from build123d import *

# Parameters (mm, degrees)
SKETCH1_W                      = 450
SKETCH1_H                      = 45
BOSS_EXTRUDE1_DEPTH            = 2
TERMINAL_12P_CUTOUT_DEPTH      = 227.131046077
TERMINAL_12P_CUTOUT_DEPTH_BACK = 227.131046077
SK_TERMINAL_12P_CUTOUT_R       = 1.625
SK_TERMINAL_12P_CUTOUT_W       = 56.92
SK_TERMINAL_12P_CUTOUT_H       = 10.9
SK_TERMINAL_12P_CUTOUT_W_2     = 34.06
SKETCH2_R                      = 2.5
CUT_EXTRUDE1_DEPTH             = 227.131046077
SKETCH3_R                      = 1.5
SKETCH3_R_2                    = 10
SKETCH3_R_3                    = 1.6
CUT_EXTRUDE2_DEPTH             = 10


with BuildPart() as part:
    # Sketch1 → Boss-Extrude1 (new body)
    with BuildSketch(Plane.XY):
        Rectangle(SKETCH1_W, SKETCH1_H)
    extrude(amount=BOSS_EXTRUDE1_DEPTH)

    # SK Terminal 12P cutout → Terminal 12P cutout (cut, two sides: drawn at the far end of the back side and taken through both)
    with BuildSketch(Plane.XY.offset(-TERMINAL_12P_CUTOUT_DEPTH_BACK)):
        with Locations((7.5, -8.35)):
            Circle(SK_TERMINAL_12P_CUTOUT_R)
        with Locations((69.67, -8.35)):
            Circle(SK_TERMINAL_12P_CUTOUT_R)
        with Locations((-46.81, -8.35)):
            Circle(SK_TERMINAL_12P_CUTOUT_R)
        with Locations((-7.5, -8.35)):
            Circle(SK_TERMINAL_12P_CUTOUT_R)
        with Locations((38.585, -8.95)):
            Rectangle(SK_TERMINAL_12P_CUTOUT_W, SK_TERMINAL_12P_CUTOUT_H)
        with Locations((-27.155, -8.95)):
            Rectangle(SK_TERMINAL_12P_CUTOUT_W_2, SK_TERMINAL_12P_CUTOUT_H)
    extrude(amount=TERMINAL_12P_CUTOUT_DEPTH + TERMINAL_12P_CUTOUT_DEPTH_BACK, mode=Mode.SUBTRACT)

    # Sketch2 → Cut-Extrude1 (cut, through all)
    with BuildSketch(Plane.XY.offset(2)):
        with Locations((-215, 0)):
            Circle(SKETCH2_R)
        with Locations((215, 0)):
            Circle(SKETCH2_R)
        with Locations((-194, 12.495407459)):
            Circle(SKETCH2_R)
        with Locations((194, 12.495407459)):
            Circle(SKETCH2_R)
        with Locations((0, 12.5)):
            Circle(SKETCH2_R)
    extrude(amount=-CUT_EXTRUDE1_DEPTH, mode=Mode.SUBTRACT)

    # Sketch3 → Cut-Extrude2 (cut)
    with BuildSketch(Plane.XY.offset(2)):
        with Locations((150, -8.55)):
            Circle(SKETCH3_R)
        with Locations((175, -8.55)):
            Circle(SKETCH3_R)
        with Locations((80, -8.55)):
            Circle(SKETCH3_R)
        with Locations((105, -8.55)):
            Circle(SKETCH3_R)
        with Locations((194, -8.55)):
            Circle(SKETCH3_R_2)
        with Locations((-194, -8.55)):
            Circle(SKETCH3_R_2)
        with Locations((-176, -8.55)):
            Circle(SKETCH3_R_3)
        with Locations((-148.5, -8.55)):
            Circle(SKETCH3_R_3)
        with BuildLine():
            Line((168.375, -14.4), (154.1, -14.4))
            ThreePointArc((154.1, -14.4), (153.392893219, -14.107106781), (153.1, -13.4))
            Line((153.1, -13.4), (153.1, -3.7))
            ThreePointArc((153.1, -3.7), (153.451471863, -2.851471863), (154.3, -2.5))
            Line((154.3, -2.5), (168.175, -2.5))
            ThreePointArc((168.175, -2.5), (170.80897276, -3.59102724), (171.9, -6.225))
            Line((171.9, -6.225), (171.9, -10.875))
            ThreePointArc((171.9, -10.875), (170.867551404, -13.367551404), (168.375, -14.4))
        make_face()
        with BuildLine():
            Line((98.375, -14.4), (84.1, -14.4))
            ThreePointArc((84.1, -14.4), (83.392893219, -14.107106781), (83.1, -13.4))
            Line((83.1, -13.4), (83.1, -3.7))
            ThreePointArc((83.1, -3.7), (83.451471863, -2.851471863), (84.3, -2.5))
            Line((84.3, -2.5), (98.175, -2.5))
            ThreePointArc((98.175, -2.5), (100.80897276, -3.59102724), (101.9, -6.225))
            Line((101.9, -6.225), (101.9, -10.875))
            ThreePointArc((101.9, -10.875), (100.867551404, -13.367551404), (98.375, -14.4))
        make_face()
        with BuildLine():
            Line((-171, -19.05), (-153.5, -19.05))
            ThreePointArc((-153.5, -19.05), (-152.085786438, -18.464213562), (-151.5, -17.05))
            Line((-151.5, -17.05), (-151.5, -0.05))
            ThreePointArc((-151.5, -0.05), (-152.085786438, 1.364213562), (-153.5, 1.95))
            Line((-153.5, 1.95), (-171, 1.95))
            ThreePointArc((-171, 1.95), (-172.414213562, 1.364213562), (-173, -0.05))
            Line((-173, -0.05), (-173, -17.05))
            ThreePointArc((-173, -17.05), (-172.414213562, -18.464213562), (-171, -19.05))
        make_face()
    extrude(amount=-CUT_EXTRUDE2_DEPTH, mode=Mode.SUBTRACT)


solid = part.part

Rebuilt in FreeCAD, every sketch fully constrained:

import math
import FreeCAD as App
import Part
import Sketcher

V = App.Vector


def add_polygon(sketch, points):
    """Adds a closed chain of lines whose ends are joined by coincident constraints."""
    first, n = sketch.GeometryCount, len(points)
    for a, b in zip(points, points[1:] + points[:1]):
        sketch.addGeometry(Part.LineSegment(App.Vector(*a, 0), App.Vector(*b, 0)), False)
    for i in range(n):
        sketch.addConstraint(Sketcher.Constraint("Coincident", first + i, 2, first + (i + 1) % n, 1))

doc = App.newDocument("Part")
params = doc.addObject("Spreadsheet::Sheet", "Params")
for row, (alias, value) in enumerate([
    ("sketch1_width", "450 mm"),
    ("sketch1_height", "45 mm"),
    ("pad1_length", "2 mm"),
    ("sketch2_diameter", "3.25 mm"),
    ("sketch2_height", "10.9 mm"),
    ("sketch2_width", "56.92 mm"),
    ("sketch2_width2", "34.06 mm"),
    ("sketch3_diameter", "5 mm"),
    ("sketch4_diameter", "3 mm"),
    ("sketch4_diameter2", "20 mm"),
    ("sketch4_radius", "1 mm"),
    ("sketch4_radius2", "2 mm"),
    ("sketch4_diameter3", "3.2 mm"),
    ("pocket3_length", "10 mm"),
], start=1):
    params.set(f"A{row}", alias)
    params.set(f"B{row}", "=" + value)
    params.setAlias(f"B{row}", alias)

body = doc.addObject("PartDesign::Body", "Body")

# Sketch on XY plane
sketch1 = body.newObject("Sketcher::SketchObject", "Sketch")
sketch1.AttachmentSupport = (doc.getObject("XY_Plane"), [""])
sketch1.MapMode = "FlatFace"
add_polygon(sketch1, [(-225, 22), (-225, -22), (225, -22), (225, 22)])  # lines 0-3
sketch1.addConstraint(Sketcher.Constraint("Vertical", 0))
sketch1.addConstraint(Sketcher.Constraint("Horizontal", 1))
sketch1.addConstraint(Sketcher.Constraint("Vertical", 2))
sketch1.addConstraint(Sketcher.Constraint("Horizontal", 3))
sketch1.addConstraint(Sketcher.Constraint("Symmetric", 0, 2, 2, 2, -1, 1))
sketch1.addConstraint(Sketcher.Constraint("DistanceX", 1, 1, 1, 2, 450.0))
sketch1.addConstraint(Sketcher.Constraint("DistanceY", 0, 2, 0, 1, 45.0))
sketch1.setExpression("Constraints[9]", "Params.sketch1_width")
sketch1.setExpression("Constraints[10]", "Params.sketch1_height")
pad1 = body.newObject("PartDesign::Pad", "Pad")
pad1.Profile = sketch1
pad1.setExpression("Length", "Params.pad1_length")

# Sketch on XY plane
sketch2 = body.newObject("Sketcher::SketchObject", "Sketch001")
sketch2.AttachmentSupport = (doc.getObject("XY_Plane"), [""])
sketch2.MapMode = "FlatFace"
sketch2.addGeometry(Part.Circle(V(7.5, -8.3, 0), V(0, 0, 1), 1.6), False)  # 0
sketch2.addGeometry(Part.Circle(V(69.7, -8.3, 0), V(0, 0, 1), 1.6), False)  # 1
sketch2.addGeometry(Part.Circle(V(-46.8, -8.3, 0), V(0, 0, 1), 1.6), False)  # 2
sketch2.addGeometry(Part.Circle(V(-7.5, -8.3, 0), V(0, 0, 1), 1.6), False)  # 3
add_polygon(sketch2, [(10.1, -3.5), (10.1, -14.4), (67, -14.4), (67, -3.5)])  # lines 4-7
add_polygon(sketch2, [(-44.2, -3.5), (-44.2, -14.4), (-10.1, -14.4), (-10.1, -3.5)])  # lines 8-11
sketch2.addConstraint(Sketcher.Constraint("Vertical", 4))
sketch2.addConstraint(Sketcher.Constraint("Horizontal", 5))
sketch2.addConstraint(Sketcher.Constraint("Vertical", 6))
sketch2.addConstraint(Sketcher.Constraint("Horizontal", 7))
sketch2.addConstraint(Sketcher.Constraint("Vertical", 8))
sketch2.addConstraint(Sketcher.Constraint("Horizontal", 9))
sketch2.addConstraint(Sketcher.Constraint("Vertical", 10))
sketch2.addConstraint(Sketcher.Constraint("Horizontal", 11))
sketch2.addConstraint(Sketcher.Constraint("Equal", 0, 1))
sketch2.addConstraint(Sketcher.Constraint("Equal", 1, 2))
sketch2.addConstraint(Sketcher.Constraint("Equal", 2, 3))
sketch2.addConstraint(Sketcher.Constraint("Symmetric", 0, 3, 3, 3, -2))
sketch2.addConstraint(Sketcher.Constraint("Symmetric", 4, 2, 9, 2, -2))
sketch2.addConstraint(Sketcher.Constraint("Horizontal", 0, 3, 1, 3))
sketch2.addConstraint(Sketcher.Constraint("Horizontal", 1, 3, 2, 3))
sketch2.addConstraint(Sketcher.Constraint("Horizontal", 7, 2, 10, 2))
sketch2.addConstraint(Sketcher.Constraint("Diameter", 0, 3.25))
sketch2.addConstraint(Sketcher.Constraint("DistanceY", 4, 2, 4, 1, 10.9))
sketch2.addConstraint(Sketcher.Constraint("DistanceX", 3, 3, 0, 3, 15.0))
sketch2.addConstraint(Sketcher.Constraint("DistanceX", 5, 1, 5, 2, 56.92))
sketch2.addConstraint(Sketcher.Constraint("DistanceX", 9, 1, 9, 2, 34.06))
sketch2.addConstraint(Sketcher.Constraint("DistanceY", 4, 2, -1, 1, 14.4))
sketch2.addConstraint(Sketcher.Constraint("DistanceY", 0, 3, -1, 1, 8.35))
sketch2.addConstraint(Sketcher.Constraint("DistanceX", -1, 1, 1, 3, 69.67))
sketch2.addConstraint(Sketcher.Constraint("DistanceX", 2, 3, -1, 1, 46.81))
sketch2.addConstraint(Sketcher.Constraint("DistanceX", 8, 2, 4, 2, 54.31))
sketch2.setExpression("Constraints[24]", "Params.sketch2_diameter")
sketch2.setExpression("Constraints[25]", "Params.sketch2_height")
sketch2.setExpression("Constraints[27]", "Params.sketch2_width")
sketch2.setExpression("Constraints[28]", "Params.sketch2_width2")
pocket1 = body.newObject("PartDesign::Pocket", "Pocket")
pocket1.Profile = sketch2
pocket1.Type = "ThroughAll"
pocket1.Midplane = True

# Sketch on XY plane
sketch3 = body.newObject("Sketcher::SketchObject", "Sketch002")
sketch3.AttachmentSupport = (doc.getObject("XY_Plane"), [""])
sketch3.MapMode = "FlatFace"
sketch3.AttachmentOffset = App.Placement(V(0, 0, 2), App.Rotation())
sketch3.addGeometry(Part.Circle(V(-215, 0, 0), V(0, 0, 1), 2.5), False)
sketch3.addGeometry(Part.Circle(V(215, 0, 0), V(0, 0, 1), 2.5), False)
sketch3.addGeometry(Part.Circle(V(-194, 12.5, 0), V(0, 0, 1), 2.5), False)
sketch3.addGeometry(Part.Circle(V(194, 12.5, 0), V(0, 0, 1), 2.5), False)
sketch3.addGeometry(Part.Circle(V(0, 12.5, 0), V(0, 0, 1), 2.5), False)
sketch3.addConstraint(Sketcher.Constraint("Equal", 0, 1))
sketch3.addConstraint(Sketcher.Constraint("Equal", 1, 2))
sketch3.addConstraint(Sketcher.Constraint("Equal", 2, 3))
sketch3.addConstraint(Sketcher.Constraint("Equal", 3, 4))
sketch3.addConstraint(Sketcher.Constraint("Symmetric", 0, 3, 1, 3, -1, 1))
sketch3.addConstraint(Sketcher.Constraint("Symmetric", 2, 3, 3, 3, -2))
sketch3.addConstraint(Sketcher.Constraint("PointOnObject", 0, 3, -1))
sketch3.addConstraint(Sketcher.Constraint("PointOnObject", 4, 3, -2))
sketch3.addConstraint(Sketcher.Constraint("Diameter", 0, 5.0))
sketch3.addConstraint(Sketcher.Constraint("DistanceX", 0, 3, -1, 1, 215.0))
sketch3.addConstraint(Sketcher.Constraint("DistanceX", 2, 3, -1, 1, 194.0))
sketch3.addConstraint(Sketcher.Constraint("DistanceY", -1, 1, 4, 3, 12.5))
sketch3.addConstraint(Sketcher.Constraint("DistanceY", -1, 1, 2, 3, 12.495407))
sketch3.setExpression("Constraints[8]", "Params.sketch3_diameter")
pocket2 = body.newObject("PartDesign::Pocket", "Pocket001")
pocket2.Profile = sketch3
pocket2.Type = "ThroughAll"

# Sketch on XY plane
sketch4 = body.newObject("Sketcher::SketchObject", "Sketch003")
sketch4.AttachmentSupport = (doc.getObject("XY_Plane"), [""])
sketch4.MapMode = "FlatFace"
sketch4.AttachmentOffset = App.Placement(V(0, 0, 2), App.Rotation())
sketch4.addGeometry(Part.Circle(V(150, -8.6, 0), V(0, 0, 1), 1.5), False)
sketch4.addGeometry(Part.Circle(V(175, -8.6, 0), V(0, 0, 1), 1.5), False)
sketch4.addGeometry(Part.Circle(V(80, -8.6, 0), V(0, 0, 1), 1.5), False)
sketch4.addGeometry(Part.Circle(V(105, -8.6, 0), V(0, 0, 1), 1.5), False)
sketch4.addGeometry(Part.Circle(V(194, -8.6, 0), V(0, 0, 1), 10), False)
sketch4.addGeometry(Part.Circle(V(-194, -8.6, 0), V(0, 0, 1), 10), False)
sketch4.addGeometry(Part.Circle(V(-176, -8.6, 0), V(0, 0, 1), 1.6), False)
sketch4.addGeometry(Part.Circle(V(-148.5, -8.6, 0), V(0, 0, 1), 1.6), False)
sketch4.addGeometry(Part.LineSegment(V(154.1, -14.4, 0), V(168.4, -14.4, 0)), False)
sketch4.addGeometry(Part.ArcOfCircle(Part.Circle(V(168.4, -10.9, 0), V(0, 0, 1), 3.5), math.radians(-90), math.radians(0)), False)
sketch4.addGeometry(Part.LineSegment(V(171.9, -10.9, 0), V(171.9, -6.2, 0)), False)
sketch4.addGeometry(Part.ArcOfCircle(Part.Circle(V(168.2, -6.2, 0), V(0, 0, 1), 3.7), math.radians(0), math.radians(90)), False)
sketch4.addGeometry(Part.LineSegment(V(168.2, -2.5, 0), V(154.3, -2.5, 0)), False)
sketch4.addGeometry(Part.ArcOfCircle(Part.Circle(V(154.3, -3.7, 0), V(0, 0, 1), 1.2), math.radians(90), math.radians(180)), False)
sketch4.addGeometry(Part.LineSegment(V(153.1, -3.7, 0), V(153.1, -13.4, 0)), False)
sketch4.addGeometry(Part.ArcOfCircle(Part.Circle(V(154.1, -13.4, 0), V(0, 0, 1), 1), math.radians(-180), math.radians(-90)), False)
sketch4.addGeometry(Part.LineSegment(V(84.1, -14.4, 0), V(98.4, -14.4, 0)), False)
sketch4.addGeometry(Part.ArcOfCircle(Part.Circle(V(98.4, -10.9, 0), V(0, 0, 1), 3.5), math.radians(-90), math.radians(0)), False)
sketch4.addGeometry(Part.LineSegment(V(101.9, -10.9, 0), V(101.9, -6.2, 0)), False)
sketch4.addGeometry(Part.ArcOfCircle(Part.Circle(V(98.2, -6.2, 0), V(0, 0, 1), 3.7), math.radians(0), math.radians(90)), False)
sketch4.addGeometry(Part.LineSegment(V(98.2, -2.5, 0), V(84.3, -2.5, 0)), False)
sketch4.addGeometry(Part.ArcOfCircle(Part.Circle(V(84.3, -3.7, 0), V(0, 0, 1), 1.2), math.radians(90), math.radians(180)), False)
sketch4.addGeometry(Part.LineSegment(V(83.1, -3.7, 0), V(83.1, -13.4, 0)), False)
sketch4.addGeometry(Part.ArcOfCircle(Part.Circle(V(84.1, -13.4, 0), V(0, 0, 1), 1), math.radians(-180), math.radians(-90)), False)
sketch4.addGeometry(Part.LineSegment(V(-171, -19.1, 0), V(-153.5, -19.1, 0)), False)
sketch4.addGeometry(Part.ArcOfCircle(Part.Circle(V(-153.5, -17, 0), V(0, 0, 1), 2), math.radians(-90), math.radians(0)), False)
sketch4.addGeometry(Part.LineSegment(V(-151.5, -17.1, 0), V(-151.5, -0.1, 0)), False)
sketch4.addGeometry(Part.ArcOfCircle(Part.Circle(V(-153.5, -0.1, 0), V(0, 0, 1), 2), math.radians(0), math.radians(90)), False)
sketch4.addGeometry(Part.LineSegment(V(-153.5, 1.9, 0), V(-171, 1.9, 0)), False)
sketch4.addGeometry(Part.ArcOfCircle(Part.Circle(V(-171, -0.1, 0), V(0, 0, 1), 2), math.radians(90), math.radians(180)), False)
sketch4.addGeometry(Part.LineSegment(V(-173, -0.1, 0), V(-173, -17.1, 0)), False)
sketch4.addGeometry(Part.ArcOfCircle(Part.Circle(V(-171, -17, 0), V(0, 0, 1), 2), math.radians(-180), math.radians(-90)), False)
sketch4.addConstraint(Sketcher.Constraint("Tangent", 8, 2, 9, 1))
sketch4.addConstraint(Sketcher.Constraint("Tangent", 9, 2, 10, 1))
sketch4.addConstraint(Sketcher.Constraint("Tangent", 10, 2, 11, 1))
sketch4.addConstraint(Sketcher.Constraint("Tangent", 11, 2, 12, 1))
sketch4.addConstraint(Sketcher.Constraint("Tangent", 12, 2, 13, 1))
sketch4.addConstraint(Sketcher.Constraint("Tangent", 13, 2, 14, 1))
sketch4.addConstraint(Sketcher.Constraint("Tangent", 14, 2, 15, 1))
sketch4.addConstraint(Sketcher.Constraint("Tangent", 15, 2, 8, 1))
sketch4.addConstraint(Sketcher.Constraint("Tangent", 16, 2, 17, 1))
sketch4.addConstraint(Sketcher.Constraint("Tangent", 17, 2, 18, 1))
sketch4.addConstraint(Sketcher.Constraint("Tangent", 18, 2, 19, 1))
sketch4.addConstraint(Sketcher.Constraint("Tangent", 19, 2, 20, 1))
sketch4.addConstraint(Sketcher.Constraint("Tangent", 20, 2, 21, 1))
sketch4.addConstraint(Sketcher.Constraint("Tangent", 21, 2, 22, 1))
sketch4.addConstraint(Sketcher.Constraint("Tangent", 22, 2, 23, 1))
sketch4.addConstraint(Sketcher.Constraint("Tangent", 23, 2, 16, 1))
sketch4.addConstraint(Sketcher.Constraint("Tangent", 24, 2, 25, 1))
sketch4.addConstraint(Sketcher.Constraint("Tangent", 25, 2, 26, 1))
sketch4.addConstraint(Sketcher.Constraint("Tangent", 26, 2, 27, 1))
sketch4.addConstraint(Sketcher.Constraint("Tangent", 27, 2, 28, 1))
sketch4.addConstraint(Sketcher.Constraint("Tangent", 28, 2, 29, 1))
sketch4.addConstraint(Sketcher.Constraint("Tangent", 29, 2, 30, 1))
sketch4.addConstraint(Sketcher.Constraint("Tangent", 30, 2, 31, 1))
sketch4.addConstraint(Sketcher.Constraint("Tangent", 31, 2, 24, 1))
sketch4.addConstraint(Sketcher.Constraint("Horizontal", 8))
sketch4.addConstraint(Sketcher.Constraint("Vertical", 10))
sketch4.addConstraint(Sketcher.Constraint("Horizontal", 12))
sketch4.addConstraint(Sketcher.Constraint("Vertical", 14))
sketch4.addConstraint(Sketcher.Constraint("Horizontal", 16))
sketch4.addConstraint(Sketcher.Constraint("Vertical", 18))
sketch4.addConstraint(Sketcher.Constraint("Horizontal", 20))
sketch4.addConstraint(Sketcher.Constraint("Vertical", 22))
sketch4.addConstraint(Sketcher.Constraint("Horizontal", 24))
sketch4.addConstraint(Sketcher.Constraint("Vertical", 26))
sketch4.addConstraint(Sketcher.Constraint("Horizontal", 28))
sketch4.addConstraint(Sketcher.Constraint("Vertical", 30))
sketch4.addConstraint(Sketcher.Constraint("Equal", 0, 1))
sketch4.addConstraint(Sketcher.Constraint("Equal", 1, 2))
sketch4.addConstraint(Sketcher.Constraint("Equal", 2, 3))
sketch4.addConstraint(Sketcher.Constraint("Equal", 4, 5))
sketch4.addConstraint(Sketcher.Constraint("Equal", 6, 7))
sketch4.addConstraint(Sketcher.Constraint("Equal", 9, 17))
sketch4.addConstraint(Sketcher.Constraint("Equal", 11, 19))
sketch4.addConstraint(Sketcher.Constraint("Equal", 13, 21))
sketch4.addConstraint(Sketcher.Constraint("Equal", 15, 23))
sketch4.addConstraint(Sketcher.Constraint("Equal", 25, 27))
sketch4.addConstraint(Sketcher.Constraint("Equal", 27, 29))
sketch4.addConstraint(Sketcher.Constraint("Equal", 29, 31))
sketch4.addConstraint(Sketcher.Constraint("Symmetric", 4, 3, 5, 3, -2))
sketch4.addConstraint(Sketcher.Constraint("Horizontal", 0, 3, 1, 3))
sketch4.addConstraint(Sketcher.Constraint("Horizontal", 1, 3, 2, 3))
sketch4.addConstraint(Sketcher.Constraint("Horizontal", 2, 3, 3, 3))
sketch4.addConstraint(Sketcher.Constraint("Horizontal", 3, 3, 4, 3))
sketch4.addConstraint(Sketcher.Constraint("Horizontal", 5, 3, 6, 3))
sketch4.addConstraint(Sketcher.Constraint("Horizontal", 6, 3, 7, 3))
sketch4.addConstraint(Sketcher.Constraint("Horizontal", 9, 3, 17, 3))
sketch4.addConstraint(Sketcher.Constraint("Horizontal", 11, 3, 19, 3))
sketch4.addConstraint(Sketcher.Constraint("Equal", 8, 16))
sketch4.addConstraint(Sketcher.Constraint("Diameter", 0, 3.0))
sketch4.addConstraint(Sketcher.Constraint("Diameter", 4, 20.0))
sketch4.addConstraint(Sketcher.Constraint("Radius", 15, 1.0))
sketch4.addConstraint(Sketcher.Constraint("Radius", 25, 2.0))
sketch4.addConstraint(Sketcher.Constraint("Diameter", 6, 3.2))
sketch4.addConstraint(Sketcher.Constraint("Radius", 13, 1.2))
sketch4.addConstraint(Sketcher.Constraint("DistanceY", 26, 1, 26, 2, 17.0))
sketch4.addConstraint(Sketcher.Constraint("DistanceX", 24, 1, 24, 2, 17.5))
sketch4.addConstraint(Sketcher.Constraint("DistanceY", 14, 2, 14, 1, 9.7))
sketch4.addConstraint(Sketcher.Constraint("DistanceX", -1, 1, 0, 3, 150.0))
sketch4.addConstraint(Sketcher.Constraint("DistanceX", -1, 1, 1, 3, 175.0))
sketch4.addConstraint(Sketcher.Constraint("DistanceX", -1, 1, 2, 3, 80.0))
sketch4.addConstraint(Sketcher.Constraint("DistanceX", -1, 1, 3, 3, 105.0))
sketch4.addConstraint(Sketcher.Constraint("DistanceX", -1, 1, 4, 3, 194.0))
sketch4.addConstraint(Sketcher.Constraint("DistanceX", 6, 3, -1, 1, 176.0))
sketch4.addConstraint(Sketcher.Constraint("DistanceX", 29, 3, -1, 1, 171.0))
sketch4.addConstraint(Sketcher.Constraint("Radius", 9, 3.525))
sketch4.addConstraint(Sketcher.Constraint("Radius", 11, 3.725))
sketch4.addConstraint(Sketcher.Constraint("DistanceX", 25, 3, 7, 3, 5.0))
sketch4.addConstraint(Sketcher.Constraint("DistanceX", -1, 1, 13, 3, 154.3))
sketch4.addConstraint(Sketcher.Constraint("DistanceY", 13, 3, -1, 1, 3.7))
sketch4.addConstraint(Sketcher.Constraint("DistanceX", -1, 1, 21, 3, 84.3))
sketch4.addConstraint(Sketcher.Constraint("DistanceX", -1, 1, 9, 2, 171.9))
sketch4.addConstraint(Sketcher.Constraint("DistanceY", 25, 3, 7, 3, 8.5))
sketch4.addConstraint(Sketcher.Constraint("DistanceY", 0, 3, -1, 1, 8.55))
sketch4.setExpression("Constraints[58]", "Params.sketch4_diameter")
sketch4.setExpression("Constraints[59]", "Params.sketch4_diameter2")
sketch4.setExpression("Constraints[60]", "Params.sketch4_radius")
sketch4.setExpression("Constraints[61]", "Params.sketch4_radius2")
sketch4.setExpression("Constraints[62]", "Params.sketch4_diameter3")
pocket3 = body.newObject("PartDesign::Pocket", "Pocket002")
pocket3.Profile = sketch4
pocket3.setExpression("Length", "Params.pocket3_length")

doc.recompute()
